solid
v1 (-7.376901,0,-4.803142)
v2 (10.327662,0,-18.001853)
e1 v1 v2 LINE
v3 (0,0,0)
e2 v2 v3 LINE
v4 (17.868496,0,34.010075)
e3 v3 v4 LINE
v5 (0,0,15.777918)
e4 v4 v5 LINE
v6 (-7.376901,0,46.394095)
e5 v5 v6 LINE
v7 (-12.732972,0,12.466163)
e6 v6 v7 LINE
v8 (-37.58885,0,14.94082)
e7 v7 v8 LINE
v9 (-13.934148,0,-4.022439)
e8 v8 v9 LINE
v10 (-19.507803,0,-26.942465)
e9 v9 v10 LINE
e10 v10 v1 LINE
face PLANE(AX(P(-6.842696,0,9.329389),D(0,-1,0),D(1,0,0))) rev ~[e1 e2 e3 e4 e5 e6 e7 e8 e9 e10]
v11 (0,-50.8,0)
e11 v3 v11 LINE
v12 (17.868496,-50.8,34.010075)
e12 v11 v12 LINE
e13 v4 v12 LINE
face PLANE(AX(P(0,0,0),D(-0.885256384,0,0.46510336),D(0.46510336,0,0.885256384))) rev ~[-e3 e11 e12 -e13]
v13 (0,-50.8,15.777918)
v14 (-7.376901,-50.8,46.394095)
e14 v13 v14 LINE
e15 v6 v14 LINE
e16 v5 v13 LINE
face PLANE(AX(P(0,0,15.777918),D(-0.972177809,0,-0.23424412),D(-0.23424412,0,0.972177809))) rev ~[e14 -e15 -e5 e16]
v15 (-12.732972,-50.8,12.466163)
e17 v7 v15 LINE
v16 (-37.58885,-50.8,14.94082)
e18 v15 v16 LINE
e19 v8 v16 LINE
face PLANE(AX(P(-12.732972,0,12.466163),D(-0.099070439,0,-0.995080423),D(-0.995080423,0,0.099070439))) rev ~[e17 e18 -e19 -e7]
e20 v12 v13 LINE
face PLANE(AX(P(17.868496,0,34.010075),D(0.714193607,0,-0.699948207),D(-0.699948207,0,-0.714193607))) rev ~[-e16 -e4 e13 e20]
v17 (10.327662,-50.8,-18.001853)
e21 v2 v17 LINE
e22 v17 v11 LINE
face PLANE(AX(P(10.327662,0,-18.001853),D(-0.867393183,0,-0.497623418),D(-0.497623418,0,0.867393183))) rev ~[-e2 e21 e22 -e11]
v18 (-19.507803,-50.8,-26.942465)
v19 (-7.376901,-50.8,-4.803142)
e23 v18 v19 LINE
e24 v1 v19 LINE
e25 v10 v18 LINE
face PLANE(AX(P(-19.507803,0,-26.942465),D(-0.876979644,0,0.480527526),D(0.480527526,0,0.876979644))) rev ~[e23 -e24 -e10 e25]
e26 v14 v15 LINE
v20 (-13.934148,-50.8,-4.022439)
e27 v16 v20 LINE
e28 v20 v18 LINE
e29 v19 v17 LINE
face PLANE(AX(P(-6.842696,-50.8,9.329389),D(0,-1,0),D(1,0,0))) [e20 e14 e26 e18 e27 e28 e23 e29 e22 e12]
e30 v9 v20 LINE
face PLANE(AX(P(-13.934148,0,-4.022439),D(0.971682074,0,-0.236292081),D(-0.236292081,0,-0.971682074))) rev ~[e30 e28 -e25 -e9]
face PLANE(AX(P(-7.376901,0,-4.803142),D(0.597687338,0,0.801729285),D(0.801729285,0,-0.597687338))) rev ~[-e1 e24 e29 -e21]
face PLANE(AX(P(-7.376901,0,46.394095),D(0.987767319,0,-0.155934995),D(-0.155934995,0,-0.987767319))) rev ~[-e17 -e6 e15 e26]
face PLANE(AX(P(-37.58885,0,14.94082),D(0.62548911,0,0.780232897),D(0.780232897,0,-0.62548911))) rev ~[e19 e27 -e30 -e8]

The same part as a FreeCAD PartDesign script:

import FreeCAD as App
import Part
import Sketcher

V = App.Vector
Q = App.Units.Quantity

doc = App.newDocument("Part")
body = doc.addObject("PartDesign::Body", "Body")

sketch1 = body.newObject("Sketcher::SketchObject", "Sketch")
sketch1.AttachmentSupport = (doc.getObject("XZ_Plane"), [""])
sketch1.MapMode = "FlatFace"
sketch1.addGeometry([
    Part.LineSegment(V(0, 16, 0), V(-7, 46, 0)),
    Part.LineSegment(V(-7, 46, 0), V(-13, 12, 0)),
    Part.LineSegment(V(-13, 12, 0), V(-38, 15, 0)),
    Part.LineSegment(V(-38, 15, 0), V(-14, -4, 0)),
    Part.LineSegment(V(-14, -4, 0), V(-20, -27, 0)),
    Part.LineSegment(V(-20, -27, 0), V(-7, -5, 0)),
    Part.LineSegment(V(-7, -5, 0), V(10, -18, 0)),
    Part.LineSegment(V(10, -18, 0), V(0, 0, 0)),
    Part.LineSegment(V(0, 0, 0), V(18, 34, 0)),
    Part.LineSegment(V(18, 34, 0), V(0, 16, 0)),
], False)
sketch1.addConstraint([
    Sketcher.Constraint("Coincident", 0, 2, 1, 1),
    Sketcher.Constraint("Coincident", 1, 2, 2, 1),
    Sketcher.Constraint("Coincident", 2, 2, 3, 1),
    Sketcher.Constraint("Coincident", 3, 2, 4, 1),
    Sketcher.Constraint("Coincident", 4, 2, 5, 1),
    Sketcher.Constraint("Coincident", 5, 2, 6, 1),
    Sketcher.Constraint("Coincident", 6, 2, 7, 1),
    Sketcher.Constraint("Coincident", 7, 2, 8, 1),
    Sketcher.Constraint("Coincident", 8, 2, 9, 1),
    Sketcher.Constraint("Coincident", 9, 2, 0, 1),
    Sketcher.Constraint("Coincident", 7, 2, -1, 1),
    Sketcher.Constraint("PointOnObject", 9, 2, -2),
    Sketcher.Constraint("Vertical", 0, 2, 5, 2),
    Sketcher.Constraint("DistanceY", 5, 2, -1, 1, Q("0.1891001 in")),
    Sketcher.Constraint("Distance", 1, Q("34.348101 mm")),
    Sketcher.Constraint("DistanceX", 0, 2, -1, 1, Q("7.376901 mm")),
    Sketcher.Constraint("DistanceY", 3, 2, 1, 2, Q("16.488602 mm")),
    Sketcher.Constraint("DistanceX", 4, 2, 0, 2, Q("12.130902 mm")),
    Sketcher.Constraint("Distance", 3, Q("30.317489 mm")),
    Sketcher.Constraint("Distance", 4, Q("23.587989 mm")),
    Sketcher.Constraint("Distance", 6, Q("22.082969 mm")),
    Sketcher.Constraint("Distance", 7, Q("20.753971 mm")),
    Sketcher.Constraint("Distance", 9, Q("25.528312 mm")),
    Sketcher.Constraint("DistanceX", 2, 2, -1, 1, Q("37.58885 mm")),
    Sketcher.Constraint("DistanceY", -1, 1, 2, 2, Q("14.94082 mm")),
    Sketcher.Constraint("DistanceY", 3, 2, -1, 1, Q("4.022439 mm")),
    Sketcher.Constraint("DistanceX", 1, 2, 0, 2, Q("5.356071 mm")),
    Sketcher.Constraint("DistanceY", 8, 2, 0, 2, Q("12.38402 mm")),
    Sketcher.Constraint("DistanceX", 1, 2, 8, 2, Q("30.601468 mm")),
])
pad1 = body.newObject("PartDesign::Pad", "Pad")
pad1.Profile = sketch1
pad1.Length = Q("2 in")

doc.recompute()
